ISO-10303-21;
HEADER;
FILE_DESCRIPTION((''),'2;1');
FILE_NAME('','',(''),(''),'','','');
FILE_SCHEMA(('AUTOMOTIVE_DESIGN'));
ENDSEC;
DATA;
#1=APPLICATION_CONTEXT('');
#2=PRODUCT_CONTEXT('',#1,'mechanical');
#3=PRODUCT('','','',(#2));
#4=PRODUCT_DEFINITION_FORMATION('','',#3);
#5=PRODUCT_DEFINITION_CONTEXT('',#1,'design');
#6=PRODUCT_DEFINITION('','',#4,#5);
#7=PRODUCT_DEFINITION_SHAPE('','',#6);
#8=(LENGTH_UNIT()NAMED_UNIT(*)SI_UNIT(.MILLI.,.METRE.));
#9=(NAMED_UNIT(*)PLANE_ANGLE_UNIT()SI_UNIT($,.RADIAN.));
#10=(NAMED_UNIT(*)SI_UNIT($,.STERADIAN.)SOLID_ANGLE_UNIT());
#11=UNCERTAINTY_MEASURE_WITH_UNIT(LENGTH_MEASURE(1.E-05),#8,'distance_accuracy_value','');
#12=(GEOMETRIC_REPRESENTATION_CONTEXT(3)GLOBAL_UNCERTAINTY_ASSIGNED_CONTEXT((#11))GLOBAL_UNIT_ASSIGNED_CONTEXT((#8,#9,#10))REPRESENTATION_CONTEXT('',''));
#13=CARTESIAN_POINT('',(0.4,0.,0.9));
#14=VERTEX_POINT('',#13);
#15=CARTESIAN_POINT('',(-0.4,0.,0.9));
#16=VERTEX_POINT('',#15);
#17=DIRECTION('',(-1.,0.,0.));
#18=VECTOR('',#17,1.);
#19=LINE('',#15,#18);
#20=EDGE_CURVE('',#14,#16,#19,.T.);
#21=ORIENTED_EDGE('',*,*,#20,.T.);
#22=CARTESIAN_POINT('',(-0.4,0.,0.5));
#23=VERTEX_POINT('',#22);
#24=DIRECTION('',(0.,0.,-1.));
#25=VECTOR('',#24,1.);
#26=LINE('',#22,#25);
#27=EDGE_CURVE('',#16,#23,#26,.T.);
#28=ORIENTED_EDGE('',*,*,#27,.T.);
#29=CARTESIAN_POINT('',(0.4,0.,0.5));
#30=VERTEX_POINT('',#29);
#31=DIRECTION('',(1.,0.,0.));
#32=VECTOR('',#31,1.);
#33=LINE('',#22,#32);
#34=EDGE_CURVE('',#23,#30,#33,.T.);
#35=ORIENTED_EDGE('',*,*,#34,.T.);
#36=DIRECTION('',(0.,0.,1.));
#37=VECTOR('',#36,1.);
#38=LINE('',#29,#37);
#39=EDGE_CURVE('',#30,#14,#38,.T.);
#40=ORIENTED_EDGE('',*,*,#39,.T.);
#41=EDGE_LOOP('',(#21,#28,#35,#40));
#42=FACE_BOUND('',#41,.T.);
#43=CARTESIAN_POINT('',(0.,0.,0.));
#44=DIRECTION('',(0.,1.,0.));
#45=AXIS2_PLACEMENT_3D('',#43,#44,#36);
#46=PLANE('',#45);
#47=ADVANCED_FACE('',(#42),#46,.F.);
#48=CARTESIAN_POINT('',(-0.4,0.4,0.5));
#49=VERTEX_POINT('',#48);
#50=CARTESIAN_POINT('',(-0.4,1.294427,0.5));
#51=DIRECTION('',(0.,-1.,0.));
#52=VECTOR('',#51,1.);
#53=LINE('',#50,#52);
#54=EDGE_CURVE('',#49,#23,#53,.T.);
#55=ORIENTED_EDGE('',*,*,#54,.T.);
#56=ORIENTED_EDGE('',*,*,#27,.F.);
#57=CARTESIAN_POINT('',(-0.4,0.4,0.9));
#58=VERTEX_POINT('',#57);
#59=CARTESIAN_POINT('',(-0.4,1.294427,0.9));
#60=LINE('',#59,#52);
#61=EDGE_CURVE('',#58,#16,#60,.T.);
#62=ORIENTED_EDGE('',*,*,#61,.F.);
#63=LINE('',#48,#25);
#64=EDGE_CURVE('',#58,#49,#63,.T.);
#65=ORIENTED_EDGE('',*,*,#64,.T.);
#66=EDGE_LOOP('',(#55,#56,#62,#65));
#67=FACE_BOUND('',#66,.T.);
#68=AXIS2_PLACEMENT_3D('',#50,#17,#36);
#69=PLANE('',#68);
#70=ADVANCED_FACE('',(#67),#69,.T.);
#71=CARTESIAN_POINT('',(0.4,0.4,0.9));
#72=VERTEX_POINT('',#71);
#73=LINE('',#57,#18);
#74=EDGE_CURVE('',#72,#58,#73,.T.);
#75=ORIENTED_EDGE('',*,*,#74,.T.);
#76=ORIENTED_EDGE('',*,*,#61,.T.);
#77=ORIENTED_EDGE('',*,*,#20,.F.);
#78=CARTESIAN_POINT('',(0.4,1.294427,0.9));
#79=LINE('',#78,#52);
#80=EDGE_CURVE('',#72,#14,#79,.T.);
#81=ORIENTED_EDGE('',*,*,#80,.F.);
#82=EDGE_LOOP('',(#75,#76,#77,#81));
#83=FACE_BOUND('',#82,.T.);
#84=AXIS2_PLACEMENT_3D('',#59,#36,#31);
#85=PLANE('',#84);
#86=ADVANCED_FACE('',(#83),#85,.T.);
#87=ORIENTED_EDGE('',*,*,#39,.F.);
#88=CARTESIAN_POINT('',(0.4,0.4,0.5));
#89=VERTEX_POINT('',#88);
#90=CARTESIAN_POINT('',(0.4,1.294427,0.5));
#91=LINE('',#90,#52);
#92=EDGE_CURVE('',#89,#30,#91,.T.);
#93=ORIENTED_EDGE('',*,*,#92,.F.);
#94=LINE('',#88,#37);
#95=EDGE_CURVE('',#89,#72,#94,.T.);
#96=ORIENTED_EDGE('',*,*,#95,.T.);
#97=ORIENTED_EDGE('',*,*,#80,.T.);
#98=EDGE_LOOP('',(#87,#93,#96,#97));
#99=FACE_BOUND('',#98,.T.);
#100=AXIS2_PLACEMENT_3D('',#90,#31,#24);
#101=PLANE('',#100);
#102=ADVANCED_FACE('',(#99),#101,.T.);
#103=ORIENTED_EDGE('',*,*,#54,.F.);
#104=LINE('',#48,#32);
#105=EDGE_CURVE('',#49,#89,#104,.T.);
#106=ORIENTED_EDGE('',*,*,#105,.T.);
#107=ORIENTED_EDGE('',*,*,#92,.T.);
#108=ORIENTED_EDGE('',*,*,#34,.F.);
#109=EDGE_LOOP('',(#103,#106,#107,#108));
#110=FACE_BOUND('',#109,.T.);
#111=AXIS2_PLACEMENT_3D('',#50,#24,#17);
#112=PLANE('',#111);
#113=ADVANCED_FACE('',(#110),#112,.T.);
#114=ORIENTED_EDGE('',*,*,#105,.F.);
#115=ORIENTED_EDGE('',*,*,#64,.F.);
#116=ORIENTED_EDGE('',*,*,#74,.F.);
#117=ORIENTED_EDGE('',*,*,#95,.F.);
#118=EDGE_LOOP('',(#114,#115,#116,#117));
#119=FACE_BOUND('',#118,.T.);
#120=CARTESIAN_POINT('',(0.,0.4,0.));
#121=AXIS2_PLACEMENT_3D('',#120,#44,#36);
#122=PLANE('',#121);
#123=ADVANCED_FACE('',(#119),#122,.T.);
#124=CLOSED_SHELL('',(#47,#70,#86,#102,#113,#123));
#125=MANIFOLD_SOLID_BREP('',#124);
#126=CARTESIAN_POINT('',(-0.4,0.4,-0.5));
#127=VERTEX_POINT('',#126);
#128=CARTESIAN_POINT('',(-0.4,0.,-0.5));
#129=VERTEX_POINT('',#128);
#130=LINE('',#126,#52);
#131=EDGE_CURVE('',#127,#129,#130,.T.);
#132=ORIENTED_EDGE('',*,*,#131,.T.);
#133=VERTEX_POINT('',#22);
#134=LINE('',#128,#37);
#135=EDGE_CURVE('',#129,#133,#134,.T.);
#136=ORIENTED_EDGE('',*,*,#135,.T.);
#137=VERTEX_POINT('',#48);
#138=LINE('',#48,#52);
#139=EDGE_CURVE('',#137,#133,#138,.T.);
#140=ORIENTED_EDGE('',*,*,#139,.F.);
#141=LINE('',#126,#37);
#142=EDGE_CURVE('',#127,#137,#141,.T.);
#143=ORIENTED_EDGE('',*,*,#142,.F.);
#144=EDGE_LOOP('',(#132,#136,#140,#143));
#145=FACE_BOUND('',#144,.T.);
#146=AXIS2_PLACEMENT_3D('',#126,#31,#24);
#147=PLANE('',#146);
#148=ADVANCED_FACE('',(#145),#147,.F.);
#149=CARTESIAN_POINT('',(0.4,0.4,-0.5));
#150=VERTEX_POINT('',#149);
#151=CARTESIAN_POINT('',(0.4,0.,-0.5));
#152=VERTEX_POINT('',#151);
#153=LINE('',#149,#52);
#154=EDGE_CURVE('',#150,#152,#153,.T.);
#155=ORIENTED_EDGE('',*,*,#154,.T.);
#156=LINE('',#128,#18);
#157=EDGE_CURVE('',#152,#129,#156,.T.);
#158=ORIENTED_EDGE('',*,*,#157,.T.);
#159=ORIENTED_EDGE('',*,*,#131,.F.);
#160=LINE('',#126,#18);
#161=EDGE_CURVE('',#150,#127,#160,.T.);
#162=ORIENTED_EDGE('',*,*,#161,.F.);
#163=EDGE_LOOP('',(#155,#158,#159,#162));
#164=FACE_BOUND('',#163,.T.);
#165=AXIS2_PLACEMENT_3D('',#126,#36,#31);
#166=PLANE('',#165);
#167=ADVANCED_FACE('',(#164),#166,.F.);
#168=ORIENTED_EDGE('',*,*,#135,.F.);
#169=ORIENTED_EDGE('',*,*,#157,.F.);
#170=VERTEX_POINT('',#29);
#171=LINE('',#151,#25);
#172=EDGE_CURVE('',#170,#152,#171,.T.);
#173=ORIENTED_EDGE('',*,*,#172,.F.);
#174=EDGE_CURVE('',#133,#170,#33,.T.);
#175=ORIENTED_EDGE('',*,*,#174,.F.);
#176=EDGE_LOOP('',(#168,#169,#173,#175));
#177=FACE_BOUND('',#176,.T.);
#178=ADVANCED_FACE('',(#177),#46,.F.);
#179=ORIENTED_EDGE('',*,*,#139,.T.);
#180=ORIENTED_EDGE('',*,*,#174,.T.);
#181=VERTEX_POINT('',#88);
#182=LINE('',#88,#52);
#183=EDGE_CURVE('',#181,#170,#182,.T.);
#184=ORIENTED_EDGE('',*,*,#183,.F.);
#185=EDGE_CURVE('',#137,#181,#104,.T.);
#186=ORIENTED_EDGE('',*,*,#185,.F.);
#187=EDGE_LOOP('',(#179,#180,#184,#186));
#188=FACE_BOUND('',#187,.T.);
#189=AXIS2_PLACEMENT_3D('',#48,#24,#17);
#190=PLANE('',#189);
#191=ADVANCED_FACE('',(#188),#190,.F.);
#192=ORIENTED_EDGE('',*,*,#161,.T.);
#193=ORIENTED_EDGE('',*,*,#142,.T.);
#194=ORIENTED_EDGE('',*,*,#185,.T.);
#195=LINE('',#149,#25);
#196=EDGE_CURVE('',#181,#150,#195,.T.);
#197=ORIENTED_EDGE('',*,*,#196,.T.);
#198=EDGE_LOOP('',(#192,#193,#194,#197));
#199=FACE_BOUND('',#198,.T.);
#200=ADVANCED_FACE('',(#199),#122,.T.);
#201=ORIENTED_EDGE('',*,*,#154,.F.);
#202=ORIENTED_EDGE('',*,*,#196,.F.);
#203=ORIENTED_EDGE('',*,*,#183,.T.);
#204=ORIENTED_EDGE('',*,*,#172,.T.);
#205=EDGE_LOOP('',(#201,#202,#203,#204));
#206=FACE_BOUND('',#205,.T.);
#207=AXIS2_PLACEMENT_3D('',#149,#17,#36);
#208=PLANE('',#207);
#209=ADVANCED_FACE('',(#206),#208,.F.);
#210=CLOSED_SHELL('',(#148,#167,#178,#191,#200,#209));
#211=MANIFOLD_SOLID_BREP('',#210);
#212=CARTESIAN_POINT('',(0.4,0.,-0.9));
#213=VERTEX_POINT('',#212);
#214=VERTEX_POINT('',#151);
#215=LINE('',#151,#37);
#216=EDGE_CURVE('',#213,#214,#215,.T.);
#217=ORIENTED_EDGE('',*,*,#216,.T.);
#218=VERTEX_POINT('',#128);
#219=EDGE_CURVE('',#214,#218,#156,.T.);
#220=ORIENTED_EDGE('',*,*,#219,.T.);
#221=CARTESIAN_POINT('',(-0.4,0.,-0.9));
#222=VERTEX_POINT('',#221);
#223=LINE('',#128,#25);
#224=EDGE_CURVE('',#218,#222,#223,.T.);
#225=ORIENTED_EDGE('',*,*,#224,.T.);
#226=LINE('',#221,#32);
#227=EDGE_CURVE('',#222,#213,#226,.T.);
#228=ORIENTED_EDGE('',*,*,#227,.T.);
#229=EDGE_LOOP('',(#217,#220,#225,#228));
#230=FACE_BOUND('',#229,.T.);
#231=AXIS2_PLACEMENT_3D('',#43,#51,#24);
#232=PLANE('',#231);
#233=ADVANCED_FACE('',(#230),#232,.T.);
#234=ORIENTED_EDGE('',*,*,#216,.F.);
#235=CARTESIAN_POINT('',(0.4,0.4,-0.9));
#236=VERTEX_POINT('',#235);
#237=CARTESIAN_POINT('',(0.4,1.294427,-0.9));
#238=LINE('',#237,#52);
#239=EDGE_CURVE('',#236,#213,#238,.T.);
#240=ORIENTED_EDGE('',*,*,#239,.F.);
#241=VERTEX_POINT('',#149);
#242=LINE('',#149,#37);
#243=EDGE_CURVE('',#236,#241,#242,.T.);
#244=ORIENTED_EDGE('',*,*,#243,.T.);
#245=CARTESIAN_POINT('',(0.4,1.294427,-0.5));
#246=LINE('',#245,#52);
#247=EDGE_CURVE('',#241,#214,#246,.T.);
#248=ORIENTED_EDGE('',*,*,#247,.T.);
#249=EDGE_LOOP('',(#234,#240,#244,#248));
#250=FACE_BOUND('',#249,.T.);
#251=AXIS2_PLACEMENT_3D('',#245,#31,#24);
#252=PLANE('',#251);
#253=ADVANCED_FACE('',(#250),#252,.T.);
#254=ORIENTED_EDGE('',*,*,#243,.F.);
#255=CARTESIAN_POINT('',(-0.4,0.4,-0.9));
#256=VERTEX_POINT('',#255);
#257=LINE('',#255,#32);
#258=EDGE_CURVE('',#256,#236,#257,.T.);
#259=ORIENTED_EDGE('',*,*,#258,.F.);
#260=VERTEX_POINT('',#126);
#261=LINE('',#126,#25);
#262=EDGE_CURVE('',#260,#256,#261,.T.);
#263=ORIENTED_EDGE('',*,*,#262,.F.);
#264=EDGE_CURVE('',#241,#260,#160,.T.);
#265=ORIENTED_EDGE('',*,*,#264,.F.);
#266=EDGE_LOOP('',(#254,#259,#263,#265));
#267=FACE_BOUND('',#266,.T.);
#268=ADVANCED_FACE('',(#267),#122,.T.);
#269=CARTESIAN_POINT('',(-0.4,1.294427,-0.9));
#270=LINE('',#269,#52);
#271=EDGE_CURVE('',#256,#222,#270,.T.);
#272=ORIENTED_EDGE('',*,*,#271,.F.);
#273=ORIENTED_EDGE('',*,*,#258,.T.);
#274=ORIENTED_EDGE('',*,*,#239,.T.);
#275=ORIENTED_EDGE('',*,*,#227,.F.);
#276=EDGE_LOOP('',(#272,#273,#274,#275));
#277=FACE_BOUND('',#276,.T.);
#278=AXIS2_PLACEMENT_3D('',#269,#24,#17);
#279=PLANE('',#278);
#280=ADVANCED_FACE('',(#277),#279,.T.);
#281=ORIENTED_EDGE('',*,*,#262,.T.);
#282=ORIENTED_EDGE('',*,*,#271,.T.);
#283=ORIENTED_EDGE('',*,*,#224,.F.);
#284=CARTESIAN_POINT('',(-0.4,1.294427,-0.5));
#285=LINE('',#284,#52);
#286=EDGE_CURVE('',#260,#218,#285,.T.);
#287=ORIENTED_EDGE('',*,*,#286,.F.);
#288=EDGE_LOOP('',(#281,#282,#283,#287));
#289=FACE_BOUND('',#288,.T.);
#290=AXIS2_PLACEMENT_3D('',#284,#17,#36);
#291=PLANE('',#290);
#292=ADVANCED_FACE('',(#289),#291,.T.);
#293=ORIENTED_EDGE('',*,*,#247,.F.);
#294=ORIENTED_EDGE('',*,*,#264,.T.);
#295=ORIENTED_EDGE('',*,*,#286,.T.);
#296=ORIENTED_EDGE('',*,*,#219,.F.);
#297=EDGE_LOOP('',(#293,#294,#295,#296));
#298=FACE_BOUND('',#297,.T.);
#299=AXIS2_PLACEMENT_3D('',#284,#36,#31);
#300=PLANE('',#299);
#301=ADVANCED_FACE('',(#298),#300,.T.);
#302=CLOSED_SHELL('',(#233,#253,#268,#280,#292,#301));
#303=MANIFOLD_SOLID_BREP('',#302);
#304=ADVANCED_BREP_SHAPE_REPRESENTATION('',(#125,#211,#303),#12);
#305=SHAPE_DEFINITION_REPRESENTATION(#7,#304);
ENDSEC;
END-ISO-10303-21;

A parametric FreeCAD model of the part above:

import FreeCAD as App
import Part
import Sketcher
Q = App.Units.Quantity

doc = App.newDocument("Part")
body = doc.addObject("PartDesign::Body", "Body")

# Sketch on XZ plane
sketch1 = doc.addObject("Sketcher::SketchObject", "Sketch")
body.addObject(sketch1)
sketch1.AttachmentSupport = (doc.XZ_Plane, [""])
sketch1.MapMode = "FlatFace"
sketch1.addGeometry([
    Part.LineSegment(App.Vector(-0.4, -0.5, 0), App.Vector(-0.4, 0.5, 0)),
    Part.LineSegment(App.Vector(-0.4, 0.5, 0), App.Vector(0.4, 0.5, 0)),
    Part.LineSegment(App.Vector(0.4, 0.5, 0), App.Vector(0.4, -0.5, 0)),
    Part.LineSegment(App.Vector(0.4, -0.5, 0), App.Vector(-0.4, -0.5, 0)),
], False)
sketch1.addConstraint([
    Sketcher.Constraint("Coincident", 0, 2, 1, 1),
    Sketcher.Constraint("Coincident", 1, 2, 2, 1),
    Sketcher.Constraint("Coincident", 2, 2, 3, 1),
    Sketcher.Constraint("Coincident", 3, 2, 0, 1),
    Sketcher.Constraint("Vertical", 0),
    Sketcher.Constraint("Horizontal", 1),
    Sketcher.Constraint("Vertical", 2),
    Sketcher.Constraint("Horizontal", 3),
    Sketcher.Constraint("Symmetric", 0, 2, 2, 2, -1, 1),
    Sketcher.Constraint("DistanceY", 0, 1, 0, 2, Q("1 mm")),
    Sketcher.Constraint("DistanceX", 1, 1, 1, 2, Q("0.8 mm")),
])
pad1 = doc.addObject("PartDesign::Pad", "Pad")
body.addObject(pad1)
pad1.Profile = sketch1
pad1.Length = 0.4
pad1.Reversed = True
body2 = doc.addObject("PartDesign::Body", "Body001")

# Sketch on XZ plane
sketch2 = doc.addObject("Sketcher::SketchObject", "Sketch001")
body2.addObject(sketch2)
sketch2.AttachmentSupport = (doc.getObject("XZ_Plane001"), [""])
sketch2.MapMode = "FlatFace"
sketch2.addGeometry([
    Part.LineSegment(App.Vector(0.4, 0.5, 0), App.Vector(0.4, 0.9, 0)),
    Part.LineSegment(App.Vector(0.4, 0.9, 0), App.Vector(-0.4, 0.9, 0)),
    Part.LineSegment(App.Vector(-0.4, 0.9, 0), App.Vector(-0.4, 0.5, 0)),
    Part.LineSegment(App.Vector(-0.4, 0.5, 0), App.Vector(0.4, 0.5, 0)),
], False)
sketch2.addConstraint([
    Sketcher.Constraint("Coincident", 0, 2, 1, 1),
    Sketcher.Constraint("Coincident", 1, 2, 2, 1),
    Sketcher.Constraint("Coincident", 2, 2, 3, 1),
    Sketcher.Constraint("Coincident", 3, 2, 0, 1),
    Sketcher.Constraint("Vertical", 0),
    Sketcher.Constraint("Horizontal", 1),
    Sketcher.Constraint("Vertical", 2),
    Sketcher.Constraint("Horizontal", 3),
    Sketcher.Constraint("DistanceX", 1, 2, 1, 1, Q("0.8 mm")),
    Sketcher.Constraint("DistanceY", 0, 1, 0, 2, Q("0.4 mm")),
    Sketcher.Constraint("DistanceX", -1, 1, 0, 2, Q("0.4 mm")),
    Sketcher.Constraint("DistanceY", -1, 1, 0, 2, Q("0.9 mm")),
])
pad2 = doc.addObject("PartDesign::Pad", "Pad001")
body2.addObject(pad2)
pad2.Profile = sketch2
pad2.Length = 0.4
pad2.Reversed = True
body3 = doc.addObject("PartDesign::Body", "Body002")

# Sketch on XZ plane
sketch3 = doc.addObject("Sketcher::SketchObject", "Sketch002")
body3.addObject(sketch3)
sketch3.AttachmentSupport = (doc.getObject("XZ_Plane002"), [""])
sketch3.MapMode = "FlatFace"
sketch3.addGeometry([
    Part.LineSegment(App.Vector(-0.4, -0.5, 0), App.Vector(-0.4, -0.9, 0)),
    Part.LineSegment(App.Vector(-0.4, -0.9, 0), App.Vector(0.4, -0.9, 0)),
    Part.LineSegment(App.Vector(0.4, -0.9, 0), App.Vector(0.4, -0.5, 0)),
    Part.LineSegment(App.Vector(0.4, -0.5, 0), App.Vector(-0.4, -0.5, 0)),
], False)
sketch3.addConstraint([
    Sketcher.Constraint("Coincident", 0, 2, 1, 1),
    Sketcher.Constraint("Coincident", 1, 2, 2, 1),
    Sketcher.Constraint("Coincident", 2, 2, 3, 1),
    Sketcher.Constraint("Coincident", 3, 2, 0, 1),
    Sketcher.Constraint("Vertical", 0),
    Sketcher.Constraint("Horizontal", 1),
    Sketcher.Constraint("Vertical", 2),
    Sketcher.Constraint("Horizontal", 3),
    Sketcher.Constraint("DistanceX", 1, 1, 1, 2, Q("0.8 mm")),
    Sketcher.Constraint("DistanceY", 0, 2, 0, 1, Q("0.4 mm")),
    Sketcher.Constraint("DistanceX", 0, 2, -1, 1, Q("0.4 mm")),
    Sketcher.Constraint("DistanceY", 0, 2, -1, 1, Q("0.9 mm")),
])
pad3 = doc.addObject("PartDesign::Pad", "Pad002")
body3.addObject(pad3)
pad3.Profile = sketch3
pad3.Length = 0.4
pad3.Reversed = True

doc.recompute()
